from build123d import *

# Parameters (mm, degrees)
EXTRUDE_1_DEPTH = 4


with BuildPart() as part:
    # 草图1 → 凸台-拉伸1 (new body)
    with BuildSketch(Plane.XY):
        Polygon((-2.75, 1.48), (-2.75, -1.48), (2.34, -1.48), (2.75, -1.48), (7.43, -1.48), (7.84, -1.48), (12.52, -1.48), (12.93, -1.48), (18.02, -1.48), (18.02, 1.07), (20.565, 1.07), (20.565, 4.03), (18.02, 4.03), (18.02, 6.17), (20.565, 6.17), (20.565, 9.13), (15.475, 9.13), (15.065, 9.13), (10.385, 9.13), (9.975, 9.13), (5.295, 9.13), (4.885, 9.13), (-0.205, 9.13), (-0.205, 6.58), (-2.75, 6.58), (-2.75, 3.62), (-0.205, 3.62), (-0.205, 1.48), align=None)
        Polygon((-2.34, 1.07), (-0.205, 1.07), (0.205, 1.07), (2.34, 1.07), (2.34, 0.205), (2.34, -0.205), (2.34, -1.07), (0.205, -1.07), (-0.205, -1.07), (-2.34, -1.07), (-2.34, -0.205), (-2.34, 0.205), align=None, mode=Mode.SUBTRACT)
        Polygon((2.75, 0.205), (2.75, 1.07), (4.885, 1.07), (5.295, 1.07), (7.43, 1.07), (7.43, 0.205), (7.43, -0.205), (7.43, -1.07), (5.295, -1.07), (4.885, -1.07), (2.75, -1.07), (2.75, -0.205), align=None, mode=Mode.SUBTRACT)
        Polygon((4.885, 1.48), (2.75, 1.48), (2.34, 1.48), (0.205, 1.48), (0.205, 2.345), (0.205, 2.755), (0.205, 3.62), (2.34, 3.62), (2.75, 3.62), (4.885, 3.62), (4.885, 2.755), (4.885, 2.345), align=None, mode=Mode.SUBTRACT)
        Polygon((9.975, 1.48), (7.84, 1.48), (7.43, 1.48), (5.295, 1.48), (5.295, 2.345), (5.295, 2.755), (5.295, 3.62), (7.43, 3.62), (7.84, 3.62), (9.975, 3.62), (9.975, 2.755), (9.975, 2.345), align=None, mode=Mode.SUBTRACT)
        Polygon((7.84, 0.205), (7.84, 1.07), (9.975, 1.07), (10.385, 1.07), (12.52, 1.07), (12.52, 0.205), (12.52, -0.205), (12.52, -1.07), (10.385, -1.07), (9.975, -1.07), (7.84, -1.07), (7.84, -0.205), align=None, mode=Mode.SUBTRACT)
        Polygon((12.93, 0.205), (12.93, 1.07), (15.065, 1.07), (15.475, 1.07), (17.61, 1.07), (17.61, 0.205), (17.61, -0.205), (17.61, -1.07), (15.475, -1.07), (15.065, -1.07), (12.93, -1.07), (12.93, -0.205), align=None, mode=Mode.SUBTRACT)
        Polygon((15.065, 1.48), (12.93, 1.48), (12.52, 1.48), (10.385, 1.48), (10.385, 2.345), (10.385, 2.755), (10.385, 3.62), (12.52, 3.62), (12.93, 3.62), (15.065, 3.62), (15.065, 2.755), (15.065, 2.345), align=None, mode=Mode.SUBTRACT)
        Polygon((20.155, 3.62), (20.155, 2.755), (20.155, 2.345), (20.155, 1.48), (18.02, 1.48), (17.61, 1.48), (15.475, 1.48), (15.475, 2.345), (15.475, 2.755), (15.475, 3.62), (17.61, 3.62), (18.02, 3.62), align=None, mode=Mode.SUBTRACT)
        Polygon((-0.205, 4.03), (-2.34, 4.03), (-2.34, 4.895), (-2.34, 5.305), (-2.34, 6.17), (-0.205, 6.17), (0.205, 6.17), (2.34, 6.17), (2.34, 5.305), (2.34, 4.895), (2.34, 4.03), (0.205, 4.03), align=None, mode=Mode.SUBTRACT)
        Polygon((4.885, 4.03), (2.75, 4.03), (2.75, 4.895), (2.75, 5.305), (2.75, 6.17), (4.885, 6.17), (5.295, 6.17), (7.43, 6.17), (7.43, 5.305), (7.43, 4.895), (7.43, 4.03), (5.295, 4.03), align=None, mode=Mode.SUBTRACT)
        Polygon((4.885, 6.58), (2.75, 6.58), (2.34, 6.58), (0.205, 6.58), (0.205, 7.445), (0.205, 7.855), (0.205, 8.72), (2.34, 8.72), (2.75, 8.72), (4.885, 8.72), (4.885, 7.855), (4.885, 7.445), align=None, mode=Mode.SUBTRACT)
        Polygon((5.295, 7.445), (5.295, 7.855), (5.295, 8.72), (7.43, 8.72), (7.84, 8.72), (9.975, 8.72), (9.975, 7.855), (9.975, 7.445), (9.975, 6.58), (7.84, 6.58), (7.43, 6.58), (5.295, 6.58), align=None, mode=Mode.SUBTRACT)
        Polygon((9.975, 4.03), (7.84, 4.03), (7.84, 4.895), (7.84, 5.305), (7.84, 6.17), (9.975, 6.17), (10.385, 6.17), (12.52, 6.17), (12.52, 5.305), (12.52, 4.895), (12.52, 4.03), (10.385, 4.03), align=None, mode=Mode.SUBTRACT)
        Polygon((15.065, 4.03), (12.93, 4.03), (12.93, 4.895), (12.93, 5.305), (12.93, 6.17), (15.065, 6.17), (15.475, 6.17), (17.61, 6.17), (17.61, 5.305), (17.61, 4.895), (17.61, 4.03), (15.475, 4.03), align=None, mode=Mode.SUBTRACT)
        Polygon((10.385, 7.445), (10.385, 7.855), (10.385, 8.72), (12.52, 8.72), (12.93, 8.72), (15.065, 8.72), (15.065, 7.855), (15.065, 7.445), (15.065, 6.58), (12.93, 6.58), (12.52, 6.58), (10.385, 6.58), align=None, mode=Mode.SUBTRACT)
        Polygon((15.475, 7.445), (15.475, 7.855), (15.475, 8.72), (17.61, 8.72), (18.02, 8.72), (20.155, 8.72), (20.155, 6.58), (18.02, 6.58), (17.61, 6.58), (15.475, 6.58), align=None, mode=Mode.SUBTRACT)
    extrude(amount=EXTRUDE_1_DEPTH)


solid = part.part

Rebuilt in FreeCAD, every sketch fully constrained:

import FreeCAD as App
import Part
import Sketcher
Q = App.Units.Quantity

doc = App.newDocument("Part")
body = doc.addObject("PartDesign::Body", "Body")

sketch1 = body.newObject("Sketcher::SketchObject", "Sketch")
sketch1.AttachmentSupport = (doc.getObject("XY_Plane"), [""])
sketch1.MapMode = "FlatFace"
sketch1.addGeometry([
    Part.LineSegment(App.Vector(-2.75, 1.48, 0), App.Vector(-2.75, -1.48, 0)),
    Part.LineSegment(App.Vector(-2.75, -1.48, 0), App.Vector(18.02, -1.48, 0)),
    Part.LineSegment(App.Vector(18.02, -1.48, 0), App.Vector(18.02, 1.07, 0)),
    Part.LineSegment(App.Vector(18.02, 1.07, 0), App.Vector(20.565, 1.07, 0)),
    Part.LineSegment(App.Vector(20.565, 1.07, 0), App.Vector(20.565, 4.03, 0)),
    Part.LineSegment(App.Vector(20.565, 4.03, 0), App.Vector(18.02, 4.03, 0)),
    Part.LineSegment(App.Vector(18.02, 4.03, 0), App.Vector(18.02, 6.17, 0)),
    Part.LineSegment(App.Vector(18.02, 6.17, 0), App.Vector(20.565, 6.17, 0)),
    Part.LineSegment(App.Vector(20.565, 6.17, 0), App.Vector(20.565, 9.13, 0)),
    Part.LineSegment(App.Vector(20.565, 9.13, 0), App.Vector(-0.205, 9.13, 0)),
    Part.LineSegment(App.Vector(-0.205, 9.13, 0), App.Vector(-0.205, 6.58, 0)),
    Part.LineSegment(App.Vector(-0.205, 6.58, 0), App.Vector(-2.75, 6.58, 0)),
    Part.LineSegment(App.Vector(-2.75, 6.58, 0), App.Vector(-2.75, 3.62, 0)),
    Part.LineSegment(App.Vector(-2.75, 3.62, 0), App.Vector(-0.205, 3.62, 0)),
    Part.LineSegment(App.Vector(-0.205, 3.62, 0), App.Vector(-0.205, 1.48, 0)),
    Part.LineSegment(App.Vector(-0.205, 1.48, 0), App.Vector(-2.75, 1.48, 0)),
    Part.LineSegment(App.Vector(-2.34, -1.07, 0), App.Vector(-2.34, 1.07, 0)),
    Part.LineSegment(App.Vector(-2.34, 1.07, 0), App.Vector(2.34, 1.07, 0)),
    Part.LineSegment(App.Vector(2.34, 1.07, 0), App.Vector(2.34, -1.07, 0)),
    Part.LineSegment(App.Vector(2.34, -1.07, 0), App.Vector(-2.34, -1.07, 0)),
    Part.LineSegment(App.Vector(2.75, -1.07, 0), App.Vector(2.75, 1.07, 0)),
    Part.LineSegment(App.Vector(2.75, 1.07, 0), App.Vector(7.43, 1.07, 0)),
    Part.LineSegment(App.Vector(7.43, 1.07, 0), App.Vector(7.43, -1.07, 0)),
    Part.LineSegment(App.Vector(7.43, -1.07, 0), App.Vector(2.75, -1.07, 0)),
    Part.LineSegment(App.Vector(4.885, 3.62, 0), App.Vector(4.885, 1.48, 0)),
    Part.LineSegment(App.Vector(4.885, 1.48, 0), App.Vector(0.205, 1.48, 0)),
    Part.LineSegment(App.Vector(0.205, 1.48, 0), App.Vector(0.205, 3.62, 0)),
    Part.LineSegment(App.Vector(0.205, 3.62, 0), App.Vector(4.885, 3.62, 0)),
    Part.LineSegment(App.Vector(9.975, 3.62, 0), App.Vector(9.975, 1.48, 0)),
    Part.LineSegment(App.Vector(9.975, 1.48, 0), App.Vector(5.295, 1.48, 0)),
    Part.LineSegment(App.Vector(5.295, 1.48, 0), App.Vector(5.295, 3.62, 0)),
    Part.LineSegment(App.Vector(5.295, 3.62, 0), App.Vector(9.975, 3.62, 0)),
    Part.LineSegment(App.Vector(7.84, -1.07, 0), App.Vector(7.84, 1.07, 0)),
    Part.LineSegment(App.Vector(7.84, 1.07, 0), App.Vector(12.52, 1.07, 0)),
    Part.LineSegment(App.Vector(12.52, 1.07, 0), App.Vector(12.52, -1.07, 0)),
    Part.LineSegment(App.Vector(12.52, -1.07, 0), App.Vector(7.84, -1.07, 0)),
    Part.LineSegment(App.Vector(12.93, -1.07, 0), App.Vector(12.93, 1.07, 0)),
    Part.LineSegment(App.Vector(12.93, 1.07, 0), App.Vector(17.61, 1.07, 0)),
    Part.LineSegment(App.Vector(17.61, 1.07, 0), App.Vector(17.61, -1.07, 0)),
    Part.LineSegment(App.Vector(17.61, -1.07, 0), App.Vector(12.93, -1.07, 0)),
    Part.LineSegment(App.Vector(15.065, 3.62, 0), App.Vector(15.065, 1.48, 0)),
    Part.LineSegment(App.Vector(15.065, 1.48, 0), App.Vector(10.385, 1.48, 0)),
    Part.LineSegment(App.Vector(10.385, 1.48, 0), App.Vector(10.385, 3.62, 0)),
    Part.LineSegment(App.Vector(10.385, 3.62, 0), App.Vector(15.065, 3.62, 0)),
    Part.LineSegment(App.Vector(15.475, 3.62, 0), App.Vector(20.155, 3.62, 0)),
    Part.LineSegment(App.Vector(20.155, 3.62, 0), App.Vector(20.155, 1.48, 0)),
    Part.LineSegment(App.Vector(20.155, 1.48, 0), App.Vector(15.475, 1.48, 0)),
    Part.LineSegment(App.Vector(15.475, 1.48, 0), App.Vector(15.475, 3.62, 0)),
    Part.LineSegment(App.Vector(2.34, 4.03, 0), App.Vector(-2.34, 4.03, 0)),
    Part.LineSegment(App.Vector(-2.34, 4.03, 0), App.Vector(-2.34, 6.17, 0)),
    Part.LineSegment(App.Vector(-2.34, 6.17, 0), App.Vector(2.34, 6.17, 0)),
    Part.LineSegment(App.Vector(2.34, 6.17, 0), App.Vector(2.34, 4.03, 0)),
    Part.LineSegment(App.Vector(7.43, 4.03, 0), App.Vector(2.75, 4.03, 0)),
    Part.LineSegment(App.Vector(2.75, 4.03, 0), App.Vector(2.75, 6.17, 0)),
    Part.LineSegment(App.Vector(2.75, 6.17, 0), App.Vector(7.43, 6.17, 0)),
    Part.LineSegment(App.Vector(7.43, 6.17, 0), App.Vector(7.43, 4.03, 0)),
    Part.LineSegment(App.Vector(4.885, 8.72, 0), App.Vector(4.885, 6.58, 0)),
    Part.LineSegment(App.Vector(4.885, 6.58, 0), App.Vector(0.205, 6.58, 0)),
    Part.LineSegment(App.Vector(0.205, 6.58, 0), App.Vector(0.205, 8.72, 0)),
    Part.LineSegment(App.Vector(0.205, 8.72, 0), App.Vector(4.885, 8.72, 0)),
    Part.LineSegment(App.Vector(5.295, 6.58, 0), App.Vector(5.295, 8.72, 0)),
    Part.LineSegment(App.Vector(5.295, 8.72, 0), App.Vector(9.975, 8.72, 0)),
    Part.LineSegment(App.Vector(9.975, 8.72, 0), App.Vector(9.975, 6.58, 0)),
    Part.LineSegment(App.Vector(9.975, 6.58, 0), App.Vector(5.295, 6.58, 0)),
    Part.LineSegment(App.Vector(12.52, 4.03, 0), App.Vector(7.84, 4.03, 0)),
    Part.LineSegment(App.Vector(7.84, 4.03, 0), App.Vector(7.84, 6.17, 0)),
    Part.LineSegment(App.Vector(7.84, 6.17, 0), App.Vector(12.52, 6.17, 0)),
    Part.LineSegment(App.Vector(12.52, 6.17, 0), App.Vector(12.52, 4.03, 0)),
    Part.LineSegment(App.Vector(17.61, 4.03, 0), App.Vector(12.93, 4.03, 0)),
    Part.LineSegment(App.Vector(12.93, 4.03, 0), App.Vector(12.93, 6.17, 0)),
    Part.LineSegment(App.Vector(12.93, 6.17, 0), App.Vector(17.61, 6.17, 0)),
    Part.LineSegment(App.Vector(17.61, 6.17, 0), App.Vector(17.61, 4.03, 0)),
    Part.LineSegment(App.Vector(10.385, 6.58, 0), App.Vector(10.385, 8.72, 0)),
    Part.LineSegment(App.Vector(10.385, 8.72, 0), App.Vector(15.065, 8.72, 0)),
    Part.LineSegment(App.Vector(15.065, 8.72, 0), App.Vector(15.065, 6.58, 0)),
    Part.LineSegment(App.Vector(15.065, 6.58, 0), App.Vector(10.385, 6.58, 0)),
    Part.LineSegment(App.Vector(15.475, 6.58, 0), App.Vector(15.475, 8.72, 0)),
    Part.LineSegment(App.Vector(15.475, 8.72, 0), App.Vector(20.155, 8.72, 0)),
    Part.LineSegment(App.Vector(20.155, 8.72, 0), App.Vector(20.155, 6.58, 0)),
    Part.LineSegment(App.Vector(20.155, 6.58, 0), App.Vector(15.475, 6.58, 0)),
], False)
sketch1.addConstraint([
    Sketcher.Constraint("Coincident", 0, 2, 1, 1),
    Sketcher.Constraint("Coincident", 1, 2, 2, 1),
    Sketcher.Constraint("Coincident", 2, 2, 3, 1),
    Sketcher.Constraint("Coincident", 3, 2, 4, 1),
    Sketcher.Constraint("Coincident", 4, 2, 5, 1),
    Sketcher.Constraint("Coincident", 5, 2, 6, 1),
    Sketcher.Constraint("Coincident", 6, 2, 7, 1),
    Sketcher.Constraint("Coincident", 7, 2, 8, 1),
    Sketcher.Constraint("Coincident", 8, 2, 9, 1),
    Sketcher.Constraint("Coincident", 9, 2, 10, 1),
    Sketcher.Constraint("Coincident", 10, 2, 11, 1),
    Sketcher.Constraint("Coincident", 11, 2, 12, 1),
    Sketcher.Constraint("Coincident", 12, 2, 13, 1),
    Sketcher.Constraint("Coincident", 13, 2, 14, 1),
    Sketcher.Constraint("Coincident", 14, 2, 15, 1),
    Sketcher.Constraint("Coincident", 15, 2, 0, 1),
    Sketcher.Constraint("Coincident", 16, 2, 17, 1),
    Sketcher.Constraint("Coincident", 17, 2, 18, 1),
    Sketcher.Constraint("Coincident", 18, 2, 19, 1),
    Sketcher.Constraint("Coincident", 19, 2, 16, 1),
    Sketcher.Constraint("Coincident", 20, 2, 21, 1),
    Sketcher.Constraint("Coincident", 21, 2, 22, 1),
    Sketcher.Constraint("Coincident", 22, 2, 23, 1),
    Sketcher.Constraint("Coincident", 23, 2, 20, 1),
    Sketcher.Constraint("Coincident", 24, 2, 25, 1),
    Sketcher.Constraint("Coincident", 25, 2, 26, 1),
    Sketcher.Constraint("Coincident", 26, 2, 27, 1),
    Sketcher.Constraint("Coincident", 27, 2, 24, 1),
    Sketcher.Constraint("Coincident", 28, 2, 29, 1),
    Sketcher.Constraint("Coincident", 29, 2, 30, 1),
    Sketcher.Constraint("Coincident", 30, 2, 31, 1),
    Sketcher.Constraint("Coincident", 31, 2, 28, 1),
    Sketcher.Constraint("Coincident", 32, 2, 33, 1),
    Sketcher.Constraint("Coincident", 33, 2, 34, 1),
    Sketcher.Constraint("Coincident", 34, 2, 35, 1),
    Sketcher.Constraint("Coincident", 35, 2, 32, 1),
    Sketcher.Constraint("Coincident", 36, 2, 37, 1),
    Sketcher.Constraint("Coincident", 37, 2, 38, 1),
    Sketcher.Constraint("Coincident", 38, 2, 39, 1),
    Sketcher.Constraint("Coincident", 39, 2, 36, 1),
    Sketcher.Constraint("Coincident", 40, 2, 41, 1),
    Sketcher.Constraint("Coincident", 41, 2, 42, 1),
    Sketcher.Constraint("Coincident", 42, 2, 43, 1),
    Sketcher.Constraint("Coincident", 43, 2, 40, 1),
    Sketcher.Constraint("Coincident", 44, 2, 45, 1),
    Sketcher.Constraint("Coincident", 45, 2, 46, 1),
    Sketcher.Constraint("Coincident", 46, 2, 47, 1),
    Sketcher.Constraint("Coincident", 47, 2, 44, 1),
    Sketcher.Constraint("Coincident", 48, 2, 49, 1),
    Sketcher.Constraint("Coincident", 49, 2, 50, 1),
    Sketcher.Constraint("Coincident", 50, 2, 51, 1),
    Sketcher.Constraint("Coincident", 51, 2, 48, 1),
    Sketcher.Constraint("Coincident", 52, 2, 53, 1),
    Sketcher.Constraint("Coincident", 53, 2, 54, 1),
    Sketcher.Constraint("Coincident", 54, 2, 55, 1),
    Sketcher.Constraint("Coincident", 55, 2, 52, 1),
    Sketcher.Constraint("Coincident", 56, 2, 57, 1),
    Sketcher.Constraint("Coincident", 57, 2, 58, 1),
    Sketcher.Constraint("Coincident", 58, 2, 59, 1),
    Sketcher.Constraint("Coincident", 59, 2, 56, 1),
    Sketcher.Constraint("Coincident", 60, 2, 61, 1),
    Sketcher.Constraint("Coincident", 61, 2, 62, 1),
    Sketcher.Constraint("Coincident", 62, 2, 63, 1),
    Sketcher.Constraint("Coincident", 63, 2, 60, 1),
    Sketcher.Constraint("Coincident", 64, 2, 65, 1),
    Sketcher.Constraint("Coincident", 65, 2, 66, 1),
    Sketcher.Constraint("Coincident", 66, 2, 67, 1),
    Sketcher.Constraint("Coincident", 67, 2, 64, 1),
    Sketcher.Constraint("Coincident", 68, 2, 69, 1),
    Sketcher.Constraint("Coincident", 69, 2, 70, 1),
    Sketcher.Constraint("Coincident", 70, 2, 71, 1),
    Sketcher.Constraint("Coincident", 71, 2, 68, 1),
    Sketcher.Constraint("Coincident", 72, 2, 73, 1),
    Sketcher.Constraint("Coincident", 73, 2, 74, 1),
    Sketcher.Constraint("Coincident", 74, 2, 75, 1),
    Sketcher.Constraint("Coincident", 75, 2, 72, 1),
    Sketcher.Constraint("Coincident", 76, 2, 77, 1),
    Sketcher.Constraint("Coincident", 77, 2, 78, 1),
    Sketcher.Constraint("Coincident", 78, 2, 79, 1),
    Sketcher.Constraint("Coincident", 79, 2, 76, 1),
    Sketcher.Constraint("Vertical", 0),
    Sketcher.Constraint("Horizontal", 1),
    Sketcher.Constraint("Vertical", 2),
    Sketcher.Constraint("Horizontal", 3),
    Sketcher.Constraint("Vertical", 4),
    Sketcher.Constraint("Horizontal", 5),
    Sketcher.Constraint("Vertical", 6),
    Sketcher.Constraint("Horizontal", 7),
    Sketcher.Constraint("Vertical", 8),
    Sketcher.Constraint("Horizontal", 9),
    Sketcher.Constraint("Vertical", 10),
    Sketcher.Constraint("Horizontal", 11),
    Sketcher.Constraint("Vertical", 12),
    Sketcher.Constraint("Horizontal", 13),
    Sketcher.Constraint("Vertical", 14),
    Sketcher.Constraint("Horizontal", 15),
    Sketcher.Constraint("Vertical", 16),
    Sketcher.Constraint("Horizontal", 17),
    Sketcher.Constraint("Vertical", 18),
    Sketcher.Constraint("Horizontal", 19),
    Sketcher.Constraint("Vertical", 20),
    Sketcher.Constraint("Horizontal", 21),
    Sketcher.Constraint("Vertical", 22),
    Sketcher.Constraint("Horizontal", 23),
    Sketcher.Constraint("Vertical", 24),
    Sketcher.Constraint("Horizontal", 25),
    Sketcher.Constraint("Vertical", 26),
    Sketcher.Constraint("Horizontal", 27),
    Sketcher.Constraint("Vertical", 28),
    Sketcher.Constraint("Horizontal", 29),
    Sketcher.Constraint("Vertical", 30),
    Sketcher.Constraint("Horizontal", 31),
    Sketcher.Constraint("Vertical", 32),
    Sketcher.Constraint("Horizontal", 33),
    Sketcher.Constraint("Vertical", 34),
    Sketcher.Constraint("Horizontal", 35),
    Sketcher.Constraint("Vertical", 36),
    Sketcher.Constraint("Horizontal", 37),
    Sketcher.Constraint("Vertical", 38),
    Sketcher.Constraint("Horizontal", 39),
    Sketcher.Constraint("Vertical", 40),
    Sketcher.Constraint("Horizontal", 41),
    Sketcher.Constraint("Vertical", 42),
    Sketcher.Constraint("Horizontal", 43),
    Sketcher.Constraint("Horizontal", 44),
    Sketcher.Constraint("Vertical", 45),
    Sketcher.Constraint("Horizontal", 46),
    Sketcher.Constraint("Vertical", 47),
    Sketcher.Constraint("Horizontal", 48),
    Sketcher.Constraint("Vertical", 49),
    Sketcher.Constraint("Horizontal", 50),
    Sketcher.Constraint("Vertical", 51),
    Sketcher.Constraint("Horizontal", 52),
    Sketcher.Constraint("Vertical", 53),
    Sketcher.Constraint("Horizontal", 54),
    Sketcher.Constraint("Vertical", 55),
    Sketcher.Constraint("Vertical", 56),
    Sketcher.Constraint("Horizontal", 57),
    Sketcher.Constraint("Vertical", 58),
    Sketcher.Constraint("Horizontal", 59),
    Sketcher.Constraint("Vertical", 60),
    Sketcher.Constraint("Horizontal", 61),
    Sketcher.Constraint("Vertical", 62),
    Sketcher.Constraint("Horizontal", 63),
    Sketcher.Constraint("Horizontal", 64),
    Sketcher.Constraint("Vertical", 65),
    Sketcher.Constraint("Horizontal", 66),
    Sketcher.Constraint("Vertical", 67),
    Sketcher.Constraint("Horizontal", 68),
    Sketcher.Constraint("Vertical", 69),
    Sketcher.Constraint("Horizontal", 70),
    Sketcher.Constraint("Vertical", 71),
    Sketcher.Constraint("Vertical", 72),
    Sketcher.Constraint("Horizontal", 73),
    Sketcher.Constraint("Vertical", 74),
    Sketcher.Constraint("Horizontal", 75),
    Sketcher.Constraint("Vertical", 76),
    Sketcher.Constraint("Horizontal", 77),
    Sketcher.Constraint("Vertical", 78),
    Sketcher.Constraint("Horizontal", 79),
    Sketcher.Constraint("Symmetric", 16, 2, 18, 2, -1, 1),
    Sketcher.Constraint("Symmetric", 14, 2, 25, 2, -2),
    Sketcher.Constraint("Symmetric", 10, 2, 57, 2, -2),
    Sketcher.Constraint("Horizontal", 3, 2, 16, 2),
    Sketcher.Constraint("Horizontal", 17, 2, 20, 2),
    Sketcher.Constraint("Horizontal", 19, 2, 22, 2),
    Sketcher.Constraint("Horizontal", 13, 2, 26, 2),
    Sketcher.Constraint("Horizontal", 25, 2, 28, 2),
    Sketcher.Constraint("Horizontal", 27, 2, 30, 2),
    Sketcher.Constraint("Horizontal", 21, 2, 32, 2),
    Sketcher.Constraint("Horizontal", 23, 2, 34, 2),
    Sketcher.Constraint("Horizontal", 33, 2, 36, 2),
    Sketcher.Constraint("Horizontal", 35, 2, 38, 2),
    Sketcher.Constraint("Horizontal", 29, 2, 40, 2),
    Sketcher.Constraint("Horizontal", 31, 2, 42, 2),
    Sketcher.Constraint("Horizontal", 43, 2, 44, 2),
    Sketcher.Constraint("Horizontal", 41, 2, 45, 2),
    Sketcher.Constraint("Horizontal", 5, 2, 48, 2),
    Sketcher.Constraint("Horizontal", 7, 2, 49, 2),
    Sketcher.Constraint("Horizontal", 51, 2, 52, 2),
    Sketcher.Constraint("Horizontal", 50, 2, 53, 2),
    Sketcher.Constraint("Horizontal", 59, 2, 60, 2),
    Sketcher.Constraint("Horizontal", 57, 2, 62, 2),
    Sketcher.Constraint("Horizontal", 55, 2, 64, 2),
    Sketcher.Constraint("Horizontal", 54, 2, 65, 2),
    Sketcher.Constraint("Horizontal", 67, 2, 68, 2),
    Sketcher.Constraint("Horizontal", 66, 2, 69, 2),
    Sketcher.Constraint("Horizontal", 61, 2, 72, 2),
    Sketcher.Constraint("Horizontal", 63, 2, 74, 2),
    Sketcher.Constraint("Horizontal", 73, 2, 76, 2),
    Sketcher.Constraint("Horizontal", 75, 2, 78, 2),
    Sketcher.Constraint("Vertical", 2, 2, 5, 2),
    Sketcher.Constraint("Vertical", 4, 2, 7, 2),
    Sketcher.Constraint("Vertical", 0, 2, 11, 2),
    Sketcher.Constraint("Vertical", 10, 2, 13, 2),
    Sketcher.Constraint("Vertical", 19, 2, 48, 2),
    Sketcher.Constraint("Vertical", 18, 2, 50, 2),
    Sketcher.Constraint("Vertical", 23, 2, 52, 2),
    Sketcher.Constraint("Vertical", 22, 2, 54, 2),
    Sketcher.Constraint("Vertical", 27, 2, 56, 2),
    Sketcher.Constraint("Vertical", 30, 2, 60, 2),
    Sketcher.Constraint("Vertical", 31, 2, 61, 2),
    Sketcher.Constraint("Vertical", 35, 2, 64, 2),
    Sketcher.Constraint("Vertical", 34, 2, 66, 2),
    Sketcher.Constraint("Vertical", 39, 2, 68, 2),
    Sketcher.Constraint("Vertical", 38, 2, 70, 2),
    Sketcher.Constraint("Vertical", 42, 2, 72, 2),
    Sketcher.Constraint("Vertical", 43, 2, 73, 2),
    Sketcher.Constraint("Vertical", 47, 2, 76, 2),
    Sketcher.Constraint("Vertical", 45, 2, 77, 2),
    Sketcher.Constraint("Equal", 1, 9),
    Sketcher.Constraint("Equal", 19, 21),
    Sketcher.Constraint("Equal", 23, 25),
    Sketcher.Constraint("Equal", 27, 29),
    Sketcher.Constraint("Equal", 31, 33),
    Sketcher.Constraint("Equal", 35, 37),
    Sketcher.Constraint("Equal", 39, 41),
    Sketcher.Constraint("Equal", 43, 44),
    Sketcher.Constraint("Equal", 0, 4),
    Sketcher.Constraint("Equal", 4, 8),
    Sketcher.Constraint("Equal", 2, 10),
    Sketcher.Constraint("Equal", 8, 12),
    Sketcher.Constraint("Equal", 14, 16),
    Sketcher.Constraint("Equal", 55, 56),
    Sketcher.Constraint("DistanceX", 1, 1, 1, 2, Q("20.77 mm")),
    Sketcher.Constraint("DistanceX", 17, 1, 17, 2, Q("4.68 mm")),
    Sketcher.Constraint("DistanceY", 0, 2, 0, 1, Q("2.96 mm")),
    Sketcher.Constraint("DistanceY", 2, 1, 2, 2, Q("2.55 mm")),
    Sketcher.Constraint("DistanceY", 6, 1, 6, 2, Q("2.14 mm")),
    Sketcher.Constraint("DistanceX", 3, 1, 3, 2, Q("2.545 mm")),
    Sketcher.Constraint("DistanceX", 0, 2, -1, 1, Q("2.75 mm")),
    Sketcher.Constraint("DistanceX", -1, 1, 20, 2, Q("2.75 mm")),
    Sketcher.Constraint("DistanceX", -1, 1, 32, 2, Q("7.84 mm")),
    Sketcher.Constraint("DistanceX", -1, 1, 36, 2, Q("12.93 mm")),
    Sketcher.Constraint("DistanceX", -1, 1, 28, 2, Q("9.975 mm")),
    Sketcher.Constraint("DistanceX", -1, 1, 40, 2, Q("15.065 mm")),
    Sketcher.Constraint("DistanceX", -1, 1, 44, 2, Q("20.155 mm")),
])
pad1 = body.newObject("PartDesign::Pad", "Pad")
pad1.Profile = sketch1
pad1.Length = 4

doc.recompute()
